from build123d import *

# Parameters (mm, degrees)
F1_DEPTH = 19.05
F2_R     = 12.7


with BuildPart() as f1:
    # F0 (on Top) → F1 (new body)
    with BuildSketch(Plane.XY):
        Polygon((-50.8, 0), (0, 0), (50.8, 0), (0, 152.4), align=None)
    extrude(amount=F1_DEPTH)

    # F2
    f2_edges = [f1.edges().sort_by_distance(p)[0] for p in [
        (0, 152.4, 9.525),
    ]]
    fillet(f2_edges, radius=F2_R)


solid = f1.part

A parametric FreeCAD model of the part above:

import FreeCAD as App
import Part
import Sketcher
from FreeCAD import Vector
Q = App.Units.Quantity


def edges_at(feature, points):
    """Names of the edges that pass closest to the given points."""
    edges = feature.Shape.Edges
    near = lambda p: min(range(len(edges)), key=lambda i: edges[i].distToShape(Part.Vertex(*p))[0])
    return sorted({f"Edge{near(p) + 1}" for p in points})

doc = App.newDocument("Part")
body = doc.addObject("PartDesign::Body", "Body")

# Sketch on XY plane
sketch1 = body.newObject("Sketcher::SketchObject", "Sketch")
sketch1.AttachmentSupport = (doc.getObject("XY_Plane"), [""])
sketch1.MapMode = "FlatFace"
sketch1.addGeometry([
    Part.LineSegment(Vector(-50.8, 0, 0), Vector(50.8, 0, 0)),
    Part.LineSegment(Vector(50.8, 0, 0), Vector(0, 152.4, 0)),
    Part.LineSegment(Vector(0, 152.4, 0), Vector(-50.8, 0, 0)),
], False)
sketch1.addConstraint([
    Sketcher.Constraint("Coincident", 0, 2, 1, 1),
    Sketcher.Constraint("Coincident", 1, 2, 2, 1),
    Sketcher.Constraint("Coincident", 2, 2, 0, 1),
    Sketcher.Constraint("Horizontal", 0),
    Sketcher.Constraint("Symmetric", 0, 2, 2, 2, -1, 1),
    Sketcher.Constraint("PointOnObject", 1, 2, -2),
    Sketcher.Constraint("DistanceX", 0, 1, 0, 2, Q("4 in")),
    Sketcher.Constraint("DistanceY", -1, 1, 1, 2, Q("6 in")),
])
pad1 = body.newObject("PartDesign::Pad", "Pad")
pad1.Profile = sketch1
pad1.Length = Q("0.75 in")
doc.recompute()

fillet = body.newObject("PartDesign::Fillet", "Fillet")
fillet.Base = (pad1, edges_at(pad1, [(0, 152.4, 9.525)]))
fillet.Radius = Q("0.5 in")

doc.recompute()
